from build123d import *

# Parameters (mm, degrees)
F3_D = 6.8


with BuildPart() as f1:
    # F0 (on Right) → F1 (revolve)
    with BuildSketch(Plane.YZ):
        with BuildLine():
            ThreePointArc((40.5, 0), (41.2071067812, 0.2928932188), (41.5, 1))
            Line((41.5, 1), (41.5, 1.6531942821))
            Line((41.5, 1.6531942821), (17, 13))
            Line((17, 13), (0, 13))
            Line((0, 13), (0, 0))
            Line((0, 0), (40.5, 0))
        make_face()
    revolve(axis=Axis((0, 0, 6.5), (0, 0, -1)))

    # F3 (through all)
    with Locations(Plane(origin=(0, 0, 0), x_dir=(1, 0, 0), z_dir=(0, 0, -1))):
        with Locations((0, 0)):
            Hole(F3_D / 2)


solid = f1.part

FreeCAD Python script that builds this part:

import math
import FreeCAD as App
import Part
import Sketcher
from FreeCAD import Vector
Q = App.Units.Quantity

doc = App.newDocument("Part")
body = doc.addObject("PartDesign::Body", "Body")

# Sketch on YZ plane
sketch1 = doc.addObject("Sketcher::SketchObject", "Sketch")
body.addObject(sketch1)
sketch1.AttachmentSupport = (doc.YZ_Plane, [""])
sketch1.MapMode = "FlatFace"
sketch1.addGeometry([
    Part.ArcOfCircle(Part.Circle(Vector(40.5, 1, 0), Vector(0, 0, 1), 1), math.radians(-90), math.radians(0)),  # 0
    Part.LineSegment(Vector(41.5, 1, 0), Vector(41.5, 1.7, 0)),  # 1
    Part.LineSegment(Vector(41.5, 1.7, 0), Vector(17, 13, 0)),  # 2
    Part.LineSegment(Vector(17, 13, 0), Vector(0, 13, 0)),  # 3
    Part.LineSegment(Vector(0, 13, 0), Vector(0, 0, 0)),  # 4
    Part.LineSegment(Vector(0, 0, 0), Vector(40.5, 0, 0)),  # 5
], False)
sketch1.addConstraint([
    Sketcher.Constraint("Tangent", 0, 2, 1, 1),
    Sketcher.Constraint("Coincident", 1, 2, 2, 1),
    Sketcher.Constraint("Coincident", 2, 2, 3, 1),
    Sketcher.Constraint("Coincident", 3, 2, 4, 1),
    Sketcher.Constraint("Coincident", 4, 2, 5, 1),
    Sketcher.Constraint("Tangent", 5, 2, 0, 1),
    Sketcher.Constraint("Vertical", 1),
    Sketcher.Constraint("Horizontal", 3),
    Sketcher.Constraint("Vertical", 4),
    Sketcher.Constraint("Horizontal", 5),
    Sketcher.Constraint("Coincident", 4, 2, -1, 1),
    Sketcher.Constraint("Radius", 0, Q("1 mm")),
    Sketcher.Constraint("DistanceX", 3, 2, 3, 1, Q("17 mm")),
    Sketcher.Constraint("DistanceY", 4, 2, 4, 1, Q("13 mm")),
    Sketcher.Constraint("Distance", 2, Q("27 mm")),
    Sketcher.Constraint("DistanceX", 5, 1, 5, 2, Q("40.5 mm")),
])
revolution = doc.addObject("PartDesign::Revolution", "Revolution")
body.addObject(revolution)
revolution.Profile = sketch1
revolution.ReferenceAxis = (sketch1, ["V_Axis"])
revolution.Angle = 360

# Sketch on XY plane
sketch2 = doc.addObject("Sketcher::SketchObject", "Sketch001")
body.addObject(sketch2)
sketch2.AttachmentSupport = (doc.XY_Plane, [""])
sketch2.MapMode = "FlatFace"
sketch2.addGeometry(Part.Circle(Vector(0, 0, 0), Vector(0, 0, 1), 3.4), False)
sketch2.addConstraint([
    Sketcher.Constraint("Coincident", 0, 3, -1, 1),
    Sketcher.Constraint("Diameter", 0, Q("6.8 mm")),
])
doc.recompute()
hole = doc.addObject("PartDesign::Hole", "Hole")
body.addObject(hole)
hole.Profile = sketch2
hole.ThreadType = "None"
hole.Diameter = 6.8
hole.DepthType = "ThroughAll"
hole.Reversed = True

doc.recompute()
